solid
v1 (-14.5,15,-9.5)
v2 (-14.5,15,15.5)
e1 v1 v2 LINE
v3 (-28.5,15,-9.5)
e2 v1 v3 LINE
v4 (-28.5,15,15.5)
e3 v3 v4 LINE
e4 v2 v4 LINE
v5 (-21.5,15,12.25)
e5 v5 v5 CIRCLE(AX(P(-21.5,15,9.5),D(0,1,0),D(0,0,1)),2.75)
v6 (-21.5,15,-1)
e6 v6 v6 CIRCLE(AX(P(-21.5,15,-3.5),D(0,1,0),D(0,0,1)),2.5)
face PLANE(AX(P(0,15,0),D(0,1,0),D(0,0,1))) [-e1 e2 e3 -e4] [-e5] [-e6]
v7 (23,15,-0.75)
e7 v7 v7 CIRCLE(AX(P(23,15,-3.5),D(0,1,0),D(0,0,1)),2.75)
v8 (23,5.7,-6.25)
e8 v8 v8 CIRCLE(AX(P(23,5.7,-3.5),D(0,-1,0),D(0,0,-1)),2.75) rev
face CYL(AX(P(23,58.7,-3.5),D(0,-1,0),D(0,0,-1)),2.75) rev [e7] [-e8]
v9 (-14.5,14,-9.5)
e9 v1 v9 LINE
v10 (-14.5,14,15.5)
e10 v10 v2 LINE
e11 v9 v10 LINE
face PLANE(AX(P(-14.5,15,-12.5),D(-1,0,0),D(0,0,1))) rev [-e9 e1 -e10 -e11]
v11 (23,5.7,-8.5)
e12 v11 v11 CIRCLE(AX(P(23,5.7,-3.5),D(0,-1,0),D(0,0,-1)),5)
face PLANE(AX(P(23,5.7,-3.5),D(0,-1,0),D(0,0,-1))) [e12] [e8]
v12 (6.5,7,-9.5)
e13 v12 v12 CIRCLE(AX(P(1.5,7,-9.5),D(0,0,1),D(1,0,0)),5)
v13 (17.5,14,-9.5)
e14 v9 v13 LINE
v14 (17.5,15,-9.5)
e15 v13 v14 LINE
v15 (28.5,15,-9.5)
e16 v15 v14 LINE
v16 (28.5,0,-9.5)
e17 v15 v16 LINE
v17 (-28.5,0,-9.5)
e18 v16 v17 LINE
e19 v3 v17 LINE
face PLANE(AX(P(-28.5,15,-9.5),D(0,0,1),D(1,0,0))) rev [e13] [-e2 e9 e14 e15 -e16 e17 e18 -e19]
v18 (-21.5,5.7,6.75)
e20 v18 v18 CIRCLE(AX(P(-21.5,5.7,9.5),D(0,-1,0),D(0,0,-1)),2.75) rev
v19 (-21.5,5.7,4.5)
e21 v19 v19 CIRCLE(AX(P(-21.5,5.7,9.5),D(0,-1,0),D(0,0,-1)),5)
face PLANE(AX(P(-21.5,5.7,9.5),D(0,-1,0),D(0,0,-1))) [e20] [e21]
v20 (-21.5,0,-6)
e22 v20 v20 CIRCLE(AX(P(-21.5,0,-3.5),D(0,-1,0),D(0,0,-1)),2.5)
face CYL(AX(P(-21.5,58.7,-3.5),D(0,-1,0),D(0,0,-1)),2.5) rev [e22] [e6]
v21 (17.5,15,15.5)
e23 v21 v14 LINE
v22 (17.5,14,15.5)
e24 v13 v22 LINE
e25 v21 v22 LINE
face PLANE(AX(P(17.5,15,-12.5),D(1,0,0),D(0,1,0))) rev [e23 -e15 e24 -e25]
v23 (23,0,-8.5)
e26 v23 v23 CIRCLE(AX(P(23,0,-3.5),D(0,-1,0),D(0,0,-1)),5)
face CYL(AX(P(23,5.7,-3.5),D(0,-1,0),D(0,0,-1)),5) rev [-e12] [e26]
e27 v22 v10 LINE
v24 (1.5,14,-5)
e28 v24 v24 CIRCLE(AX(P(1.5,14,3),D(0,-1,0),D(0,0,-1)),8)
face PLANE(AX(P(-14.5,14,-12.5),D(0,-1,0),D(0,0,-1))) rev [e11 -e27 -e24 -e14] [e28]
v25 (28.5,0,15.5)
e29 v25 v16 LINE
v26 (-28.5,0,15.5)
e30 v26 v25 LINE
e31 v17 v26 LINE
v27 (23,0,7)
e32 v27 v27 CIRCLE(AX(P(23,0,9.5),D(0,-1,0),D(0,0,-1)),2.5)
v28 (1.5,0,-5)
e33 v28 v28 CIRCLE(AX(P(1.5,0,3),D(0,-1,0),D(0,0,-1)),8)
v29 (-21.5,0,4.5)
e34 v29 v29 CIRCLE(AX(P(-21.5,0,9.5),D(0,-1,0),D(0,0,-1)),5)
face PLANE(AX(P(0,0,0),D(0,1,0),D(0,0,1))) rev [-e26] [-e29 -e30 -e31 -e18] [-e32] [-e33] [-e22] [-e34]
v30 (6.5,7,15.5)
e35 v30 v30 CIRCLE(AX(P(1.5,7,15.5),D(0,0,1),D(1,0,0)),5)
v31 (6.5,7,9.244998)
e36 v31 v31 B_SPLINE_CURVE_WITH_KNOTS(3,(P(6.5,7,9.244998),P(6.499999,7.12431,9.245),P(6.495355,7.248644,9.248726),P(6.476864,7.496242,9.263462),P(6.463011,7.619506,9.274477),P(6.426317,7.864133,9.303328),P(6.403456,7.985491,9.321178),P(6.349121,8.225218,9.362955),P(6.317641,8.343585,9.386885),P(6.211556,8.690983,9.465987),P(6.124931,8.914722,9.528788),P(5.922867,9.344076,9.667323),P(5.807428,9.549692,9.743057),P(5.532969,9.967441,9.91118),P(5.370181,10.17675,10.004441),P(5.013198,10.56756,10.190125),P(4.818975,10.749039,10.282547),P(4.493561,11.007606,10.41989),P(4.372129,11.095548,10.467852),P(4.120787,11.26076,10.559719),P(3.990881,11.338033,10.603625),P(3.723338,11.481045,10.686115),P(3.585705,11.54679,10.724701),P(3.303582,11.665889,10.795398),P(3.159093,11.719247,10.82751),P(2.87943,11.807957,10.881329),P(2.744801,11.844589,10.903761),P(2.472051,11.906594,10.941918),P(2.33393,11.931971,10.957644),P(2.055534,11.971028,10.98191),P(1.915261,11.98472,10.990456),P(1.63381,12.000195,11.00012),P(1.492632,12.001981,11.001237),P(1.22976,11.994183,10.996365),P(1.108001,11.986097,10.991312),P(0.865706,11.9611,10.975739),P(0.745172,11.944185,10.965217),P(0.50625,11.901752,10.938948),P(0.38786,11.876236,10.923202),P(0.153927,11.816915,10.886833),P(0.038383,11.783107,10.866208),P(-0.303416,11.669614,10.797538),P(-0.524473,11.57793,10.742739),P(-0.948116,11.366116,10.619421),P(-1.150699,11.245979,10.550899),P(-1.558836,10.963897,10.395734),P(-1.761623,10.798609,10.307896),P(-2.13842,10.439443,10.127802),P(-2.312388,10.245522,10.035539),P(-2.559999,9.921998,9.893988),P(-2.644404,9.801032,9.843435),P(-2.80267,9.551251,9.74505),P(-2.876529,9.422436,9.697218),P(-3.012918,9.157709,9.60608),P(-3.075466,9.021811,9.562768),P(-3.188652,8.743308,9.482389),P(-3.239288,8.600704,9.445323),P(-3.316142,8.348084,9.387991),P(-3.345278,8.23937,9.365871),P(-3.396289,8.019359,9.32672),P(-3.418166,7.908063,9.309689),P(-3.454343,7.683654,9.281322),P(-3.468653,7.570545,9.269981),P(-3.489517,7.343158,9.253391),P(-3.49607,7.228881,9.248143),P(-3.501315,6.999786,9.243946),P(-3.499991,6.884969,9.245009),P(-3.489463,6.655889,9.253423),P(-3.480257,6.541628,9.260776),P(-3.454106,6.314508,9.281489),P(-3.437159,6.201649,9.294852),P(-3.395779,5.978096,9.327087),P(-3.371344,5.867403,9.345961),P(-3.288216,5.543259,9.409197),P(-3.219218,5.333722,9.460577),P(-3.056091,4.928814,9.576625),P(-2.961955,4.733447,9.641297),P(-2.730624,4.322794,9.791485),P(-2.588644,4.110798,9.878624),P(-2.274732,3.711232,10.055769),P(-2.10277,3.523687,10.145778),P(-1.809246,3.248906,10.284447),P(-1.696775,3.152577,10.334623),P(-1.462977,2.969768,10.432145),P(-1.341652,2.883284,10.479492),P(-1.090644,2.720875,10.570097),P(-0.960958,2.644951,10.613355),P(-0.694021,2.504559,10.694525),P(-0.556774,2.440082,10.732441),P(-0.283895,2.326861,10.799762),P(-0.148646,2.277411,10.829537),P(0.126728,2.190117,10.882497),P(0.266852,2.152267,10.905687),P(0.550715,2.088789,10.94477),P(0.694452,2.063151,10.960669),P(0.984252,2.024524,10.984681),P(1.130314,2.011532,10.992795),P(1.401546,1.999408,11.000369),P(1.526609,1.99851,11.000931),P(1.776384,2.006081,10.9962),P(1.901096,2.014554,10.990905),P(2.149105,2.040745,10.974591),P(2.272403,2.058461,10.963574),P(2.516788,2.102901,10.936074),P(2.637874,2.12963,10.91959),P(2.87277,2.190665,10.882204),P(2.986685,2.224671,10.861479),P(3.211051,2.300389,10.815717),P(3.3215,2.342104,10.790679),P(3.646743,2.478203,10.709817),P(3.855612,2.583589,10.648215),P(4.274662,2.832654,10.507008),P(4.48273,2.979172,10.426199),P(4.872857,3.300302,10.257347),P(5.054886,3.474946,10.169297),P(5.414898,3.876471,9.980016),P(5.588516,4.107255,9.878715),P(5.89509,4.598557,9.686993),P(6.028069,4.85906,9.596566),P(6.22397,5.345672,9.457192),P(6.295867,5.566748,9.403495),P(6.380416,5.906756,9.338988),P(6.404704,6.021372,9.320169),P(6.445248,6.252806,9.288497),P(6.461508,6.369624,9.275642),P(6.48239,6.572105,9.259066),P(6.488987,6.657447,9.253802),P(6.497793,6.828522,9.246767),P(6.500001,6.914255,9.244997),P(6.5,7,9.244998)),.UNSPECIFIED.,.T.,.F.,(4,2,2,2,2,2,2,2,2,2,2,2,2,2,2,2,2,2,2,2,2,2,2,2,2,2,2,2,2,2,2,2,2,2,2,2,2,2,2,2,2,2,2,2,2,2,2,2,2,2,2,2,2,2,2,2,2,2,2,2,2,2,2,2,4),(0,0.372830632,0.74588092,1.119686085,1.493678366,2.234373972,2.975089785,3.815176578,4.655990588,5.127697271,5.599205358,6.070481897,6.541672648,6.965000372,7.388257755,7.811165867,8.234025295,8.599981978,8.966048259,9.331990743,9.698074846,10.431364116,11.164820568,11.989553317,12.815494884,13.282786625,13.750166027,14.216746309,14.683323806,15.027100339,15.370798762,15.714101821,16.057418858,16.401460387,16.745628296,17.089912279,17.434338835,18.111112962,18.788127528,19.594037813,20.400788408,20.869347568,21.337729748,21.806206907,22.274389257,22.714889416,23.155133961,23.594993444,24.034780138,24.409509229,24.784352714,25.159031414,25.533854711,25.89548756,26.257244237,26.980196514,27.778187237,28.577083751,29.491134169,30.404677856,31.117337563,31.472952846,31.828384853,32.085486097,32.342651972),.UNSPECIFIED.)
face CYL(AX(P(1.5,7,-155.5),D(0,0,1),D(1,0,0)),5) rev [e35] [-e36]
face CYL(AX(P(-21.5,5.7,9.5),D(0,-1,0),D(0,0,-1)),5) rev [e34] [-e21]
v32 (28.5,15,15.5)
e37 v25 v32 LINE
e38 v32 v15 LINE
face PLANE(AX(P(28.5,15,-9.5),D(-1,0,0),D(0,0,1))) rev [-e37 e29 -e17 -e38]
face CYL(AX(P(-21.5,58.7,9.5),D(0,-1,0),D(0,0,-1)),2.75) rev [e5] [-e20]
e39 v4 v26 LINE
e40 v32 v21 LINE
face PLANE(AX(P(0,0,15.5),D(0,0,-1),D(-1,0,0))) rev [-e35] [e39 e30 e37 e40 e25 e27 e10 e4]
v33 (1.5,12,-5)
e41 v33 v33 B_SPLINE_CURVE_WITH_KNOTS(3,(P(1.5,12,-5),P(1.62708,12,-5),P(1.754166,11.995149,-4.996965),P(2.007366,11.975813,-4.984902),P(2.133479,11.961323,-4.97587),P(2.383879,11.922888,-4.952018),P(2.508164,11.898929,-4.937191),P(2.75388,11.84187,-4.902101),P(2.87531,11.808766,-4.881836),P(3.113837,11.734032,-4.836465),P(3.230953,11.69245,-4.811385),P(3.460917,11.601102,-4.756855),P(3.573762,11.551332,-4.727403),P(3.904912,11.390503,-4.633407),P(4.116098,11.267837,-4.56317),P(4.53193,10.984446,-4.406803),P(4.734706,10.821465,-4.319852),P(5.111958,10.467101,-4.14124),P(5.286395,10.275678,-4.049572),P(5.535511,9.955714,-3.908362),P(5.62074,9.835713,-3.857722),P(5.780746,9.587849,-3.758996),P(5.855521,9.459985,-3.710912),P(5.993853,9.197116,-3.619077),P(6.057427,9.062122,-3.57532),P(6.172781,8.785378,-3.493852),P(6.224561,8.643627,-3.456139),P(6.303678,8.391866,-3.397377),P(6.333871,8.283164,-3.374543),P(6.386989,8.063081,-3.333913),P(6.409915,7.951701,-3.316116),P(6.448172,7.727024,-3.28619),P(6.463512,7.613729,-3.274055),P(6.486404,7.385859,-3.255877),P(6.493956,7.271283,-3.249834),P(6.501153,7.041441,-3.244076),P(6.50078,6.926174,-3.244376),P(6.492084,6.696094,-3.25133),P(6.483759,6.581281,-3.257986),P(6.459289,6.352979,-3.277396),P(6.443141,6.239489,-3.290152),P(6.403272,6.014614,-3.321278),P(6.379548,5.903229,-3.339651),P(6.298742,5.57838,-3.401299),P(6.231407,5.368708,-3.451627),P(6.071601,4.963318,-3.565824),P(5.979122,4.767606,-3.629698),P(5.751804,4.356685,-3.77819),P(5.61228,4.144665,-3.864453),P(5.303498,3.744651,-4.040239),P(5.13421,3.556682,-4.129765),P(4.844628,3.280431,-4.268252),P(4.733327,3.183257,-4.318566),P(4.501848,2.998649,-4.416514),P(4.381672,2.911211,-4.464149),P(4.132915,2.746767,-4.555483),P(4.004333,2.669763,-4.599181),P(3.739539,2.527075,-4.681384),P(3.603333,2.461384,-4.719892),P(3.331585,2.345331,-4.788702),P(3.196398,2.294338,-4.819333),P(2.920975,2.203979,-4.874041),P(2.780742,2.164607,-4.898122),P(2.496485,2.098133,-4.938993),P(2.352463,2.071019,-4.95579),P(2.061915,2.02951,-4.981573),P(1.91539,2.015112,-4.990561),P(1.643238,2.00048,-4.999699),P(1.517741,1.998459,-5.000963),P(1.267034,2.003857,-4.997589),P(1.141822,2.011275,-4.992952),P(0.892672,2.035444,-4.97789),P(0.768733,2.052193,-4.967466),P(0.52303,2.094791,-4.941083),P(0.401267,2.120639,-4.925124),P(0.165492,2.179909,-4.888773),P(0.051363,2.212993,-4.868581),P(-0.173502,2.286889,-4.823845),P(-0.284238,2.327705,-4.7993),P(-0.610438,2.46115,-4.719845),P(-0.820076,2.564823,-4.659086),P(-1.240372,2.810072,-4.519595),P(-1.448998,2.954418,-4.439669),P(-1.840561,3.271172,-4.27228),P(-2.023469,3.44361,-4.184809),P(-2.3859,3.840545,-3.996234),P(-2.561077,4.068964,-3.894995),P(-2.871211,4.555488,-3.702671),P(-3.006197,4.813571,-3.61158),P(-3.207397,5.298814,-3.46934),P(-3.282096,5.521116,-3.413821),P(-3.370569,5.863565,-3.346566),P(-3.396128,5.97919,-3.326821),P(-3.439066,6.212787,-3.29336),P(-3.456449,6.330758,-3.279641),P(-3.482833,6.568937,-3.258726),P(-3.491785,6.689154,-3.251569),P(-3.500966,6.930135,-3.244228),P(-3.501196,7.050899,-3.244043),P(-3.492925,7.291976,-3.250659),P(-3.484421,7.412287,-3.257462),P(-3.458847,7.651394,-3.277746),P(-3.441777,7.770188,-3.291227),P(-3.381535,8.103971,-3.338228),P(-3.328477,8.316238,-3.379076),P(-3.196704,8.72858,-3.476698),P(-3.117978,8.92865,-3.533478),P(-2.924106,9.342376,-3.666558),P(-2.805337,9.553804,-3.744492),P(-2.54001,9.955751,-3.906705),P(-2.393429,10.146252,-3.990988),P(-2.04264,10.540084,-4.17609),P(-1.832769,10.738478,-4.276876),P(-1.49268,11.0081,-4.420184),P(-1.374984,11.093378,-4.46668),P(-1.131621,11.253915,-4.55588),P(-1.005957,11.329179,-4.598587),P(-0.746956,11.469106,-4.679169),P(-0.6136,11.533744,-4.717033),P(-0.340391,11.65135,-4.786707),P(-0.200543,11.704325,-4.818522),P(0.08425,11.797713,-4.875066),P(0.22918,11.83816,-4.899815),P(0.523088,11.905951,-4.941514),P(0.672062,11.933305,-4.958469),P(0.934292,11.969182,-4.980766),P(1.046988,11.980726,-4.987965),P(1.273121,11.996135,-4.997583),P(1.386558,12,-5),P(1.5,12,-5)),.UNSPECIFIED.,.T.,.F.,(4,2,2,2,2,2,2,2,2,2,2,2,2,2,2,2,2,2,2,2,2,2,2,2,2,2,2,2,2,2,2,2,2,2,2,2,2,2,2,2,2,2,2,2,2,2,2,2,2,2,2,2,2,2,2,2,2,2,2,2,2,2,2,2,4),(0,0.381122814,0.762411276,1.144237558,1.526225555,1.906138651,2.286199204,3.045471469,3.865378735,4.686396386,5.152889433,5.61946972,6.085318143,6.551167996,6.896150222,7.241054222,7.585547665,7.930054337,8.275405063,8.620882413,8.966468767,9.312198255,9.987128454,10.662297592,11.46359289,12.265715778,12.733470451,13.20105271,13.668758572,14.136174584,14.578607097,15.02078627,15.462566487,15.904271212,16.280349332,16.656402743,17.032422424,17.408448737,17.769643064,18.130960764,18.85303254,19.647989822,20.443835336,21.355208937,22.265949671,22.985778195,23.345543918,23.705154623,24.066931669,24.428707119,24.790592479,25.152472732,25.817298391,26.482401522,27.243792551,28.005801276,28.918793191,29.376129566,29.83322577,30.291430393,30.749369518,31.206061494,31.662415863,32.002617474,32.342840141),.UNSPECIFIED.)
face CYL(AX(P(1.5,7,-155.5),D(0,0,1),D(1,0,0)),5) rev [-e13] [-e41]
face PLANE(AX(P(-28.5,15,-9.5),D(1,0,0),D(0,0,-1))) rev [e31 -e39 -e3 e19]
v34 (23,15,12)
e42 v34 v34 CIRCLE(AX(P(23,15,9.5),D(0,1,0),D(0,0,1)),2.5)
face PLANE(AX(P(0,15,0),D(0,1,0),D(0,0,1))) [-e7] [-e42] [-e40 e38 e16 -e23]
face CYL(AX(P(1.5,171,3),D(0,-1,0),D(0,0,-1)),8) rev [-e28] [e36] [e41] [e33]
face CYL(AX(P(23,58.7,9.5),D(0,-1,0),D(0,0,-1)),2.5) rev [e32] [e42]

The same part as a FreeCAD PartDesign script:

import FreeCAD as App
import Part
import Sketcher

V = App.Vector


def add_polygon(sketch, points):
    """Adds a closed chain of lines whose ends are joined by coincident constraints."""
    first, n = sketch.GeometryCount, len(points)
    for a, b in zip(points, points[1:] + points[:1]):
        sketch.addGeometry(Part.LineSegment(App.Vector(*a, 0), App.Vector(*b, 0)), False)
    for i in range(n):
        sketch.addConstraint(Sketcher.Constraint("Coincident", first + i, 2, first + (i + 1) % n, 1))

doc = App.newDocument("Part")
body = doc.addObject("PartDesign::Body", "Body")

sketch1 = doc.addObject("Sketcher::SketchObject", "Sketch")
body.addObject(sketch1)
sketch1.AttachmentSupport = (doc.XZ_Plane, [""])
sketch1.MapMode = "FlatFace"
add_polygon(sketch1, [(-28, -10), (-28, 10), (28, 10), (28, -10)])
sketch1.addConstraint([
    Sketcher.Constraint("Vertical", 0),
    Sketcher.Constraint("Horizontal", 1),
    Sketcher.Constraint("Vertical", 2),
    Sketcher.Constraint("Horizontal", 3),
    Sketcher.Constraint("Symmetric", 0, 2, 2, 2, -1, 1),
    Sketcher.Constraint("DistanceX", 1, 1, 1, 2, 57.0),
    Sketcher.Constraint("DistanceY", 0, 1, 0, 2, 19.0),
])
pad1 = doc.addObject("PartDesign::Pad", "Pad")
body.addObject(pad1)
pad1.Profile = sketch1
pad1.Length = 15
pad1.Reversed = True

sketch2 = doc.addObject("Sketcher::SketchObject", "Sketch001")
body.addObject(sketch2)
sketch2.AttachmentSupport = (doc.XY_Plane, [""])
sketch2.MapMode = "FlatFace"
sketch2.AttachmentOffset = App.Placement(V(0, 0, 9.5), App.Rotation())
add_polygon(sketch2, [(-14.5, 15), (-14.5, 14), (17.5, 14), (17.5, 15)])
sketch2.addConstraint([
    Sketcher.Constraint("Vertical", 0),
    Sketcher.Constraint("Horizontal", 1),
    Sketcher.Constraint("Vertical", 2),
    Sketcher.Constraint("Horizontal", 3),
    Sketcher.Constraint("DistanceX", 1, 1, 1, 2, 32.0),
    Sketcher.Constraint("DistanceY", 0, 2, 0, 1, 1.0),
    Sketcher.Constraint("DistanceY", -1, 1, 0, 2, 14.0),
    Sketcher.Constraint("DistanceX", 0, 2, -1, 1, 14.5),
])
pocket1 = doc.addObject("PartDesign::Pocket", "Pocket")
body.addObject(pocket1)
pocket1.Profile = sketch2
pocket1.Length = 22

sketch3 = doc.addObject("Sketcher::SketchObject", "Sketch002")
body.addObject(sketch3)
sketch3.AttachmentSupport = (doc.XY_Plane, [""])
sketch3.MapMode = "FlatFace"
sketch3.AttachmentOffset = App.Placement(V(0, 0, 9.5), App.Rotation())
sketch3.addGeometry(Part.Circle(V(0, 7, 0), V(0, 0, 1), 5), False)
sketch3.addConstraint([
    Sketcher.Constraint("PointOnObject", 0, 3, -2),
    Sketcher.Constraint("Diameter", 0, 10.0),
    Sketcher.Constraint("DistanceY", -1, 1, 0, 3, 7.0),
])
pocket2 = doc.addObject("PartDesign::Pocket", "Pocket001")
body.addObject(pocket2)
pocket2.Profile = sketch3
pocket2.Length = 22

sketch4 = doc.addObject("Sketcher::SketchObject", "Sketch003")
body.addObject(sketch4)
sketch4.AttachmentSupport = (doc.XY_Plane, [""])
sketch4.MapMode = "FlatFace"
sketch4.AttachmentOffset = App.Placement(V(0, 0, 9.5), App.Rotation())
add_polygon(sketch4, [(-14.5, 15), (-28.5, 15), (-28.5, 0), (28.5, 0), (28.5, 15), (17.5, 15), (17.5, 14), (-14.5, 14)])
sketch4.addConstraint([
    Sketcher.Constraint("Horizontal", 0),
    Sketcher.Constraint("Vertical", 1),
    Sketcher.Constraint("Horizontal", 2),
    Sketcher.Constraint("Vertical", 3),
    Sketcher.Constraint("Horizontal", 4),
    Sketcher.Constraint("Vertical", 5),
    Sketcher.Constraint("Horizontal", 6),
    Sketcher.Constraint("Vertical", 7),
    Sketcher.Constraint("Symmetric", 1, 2, 2, 2, -1, 1),
    Sketcher.Constraint("Horizontal", 0, 2, 3, 2),
    Sketcher.Constraint("DistanceX", 0, 2, 0, 1, 14.0),
    Sketcher.Constraint("DistanceX", 2, 1, 2, 2, 57.0),
    Sketcher.Constraint("DistanceX", 4, 2, 4, 1, 11.0),
    Sketcher.Constraint("DistanceY", 1, 2, 1, 1, 15.0),
    Sketcher.Constraint("DistanceY", 5, 2, 5, 1, 1.0),
])
pad2 = doc.addObject("PartDesign::Pad", "Pad001")
body.addObject(pad2)
pad2.Profile = sketch4
pad2.Length = 6

sketch5 = doc.addObject("Sketcher::SketchObject", "Sketch004")
body.addObject(sketch5)
sketch5.AttachmentSupport = (doc.XZ_Plane, [""])
sketch5.MapMode = "FlatFace"
sketch5.addGeometry([
    Part.Circle(V(-21.5, 9.5, 0), V(0, 0, 1), 2.8),
    Part.Circle(V(23, -3.5, 0), V(0, 0, 1), 2.8),
    Part.Circle(V(-21.5, -3.5, 0), V(0, 0, 1), 2.5),
    Part.Circle(V(23, 9.5, 0), V(0, 0, 1), 2.5),
], False)
sketch5.addConstraint([
    Sketcher.Constraint("Equal", 0, 1),
    Sketcher.Constraint("Equal", 2, 3),
    Sketcher.Constraint("Horizontal", 1, 3, 2, 3),
    Sketcher.Constraint("Horizontal", 0, 3, 3, 3),
    Sketcher.Constraint("Vertical", 0, 3, 2, 3),
    Sketcher.Constraint("Vertical", 1, 3, 3, 3),
    Sketcher.Constraint("Diameter", 2, 5.0),
    Sketcher.Constraint("Diameter", 0, 5.5),
    Sketcher.Constraint("DistanceX", -1, 1, 1, 3, 23.0),
    Sketcher.Constraint("DistanceY", 1, 3, 0, 3, 13.0),
    Sketcher.Constraint("DistanceX", 0, 3, -1, 1, 21.5),
    Sketcher.Constraint("DistanceY", -1, 1, 0, 3, 9.5),
])
pocket3 = doc.addObject("PartDesign::Pocket", "Pocket002")
body.addObject(pocket3)
pocket3.Profile = sketch5
pocket3.Length = 58.7

sketch6 = doc.addObject("Sketcher::SketchObject", "Sketch005")
body.addObject(sketch6)
sketch6.AttachmentSupport = (doc.XZ_Plane, [""])
sketch6.MapMode = "FlatFace"
sketch6.addGeometry([
    Part.Circle(V(-22, 10, 0), V(0, 0, 1), 5),
    Part.Circle(V(23, -4, 0), V(0, 0, 1), 5),
], False)
sketch6.addConstraint([
    Sketcher.Constraint("Equal", 0, 1),
    Sketcher.Constraint("Diameter", 0, 10.0),
    Sketcher.Constraint("DistanceX", -1, 1, 1, 3, 23.0),
    Sketcher.Constraint("DistanceY", 1, 3, 0, 3, 13.0),
    Sketcher.Constraint("DistanceX", 0, 3, -1, 1, 21.5),
    Sketcher.Constraint("DistanceY", -1, 1, 0, 3, 9.5),
])
pocket4 = doc.addObject("PartDesign::Pocket", "Pocket003")
body.addObject(pocket4)
pocket4.Profile = sketch6
pocket4.Length = 5.7

sketch7 = doc.addObject("Sketcher::SketchObject", "Sketch006")
body.addObject(sketch7)
sketch7.AttachmentSupport = (doc.XZ_Plane, [""])
sketch7.MapMode = "FlatFace"
sketch7.addGeometry(Part.Circle(V(0, 3, 0), V(0, 0, 1), 8), False)
sketch7.addConstraint([
    Sketcher.Constraint("PointOnObject", 0, 3, -2),
    Sketcher.Constraint("Diameter", 0, 16.0),
    Sketcher.Constraint("DistanceY", -1, 1, 0, 3, 3.0),
])
pocket5 = doc.addObject("PartDesign::Pocket", "Pocket004")
body.addObject(pocket5)
pocket5.Profile = sketch7
pocket5.Length = 15.7

sketch8 = doc.addObject("Sketcher::SketchObject", "Sketch007")
body.addObject(sketch8)
sketch8.AttachmentSupport = (doc.XY_Plane, [""])
sketch8.MapMode = "FlatFace"
sketch8.AttachmentOffset = App.Placement(V(0, 0, -9.5), App.Rotation())
sketch8.addGeometry(Part.Circle(V(0, 7, 0), V(0, 0, 1), 5), False)
sketch8.addConstraint([
    Sketcher.Constraint("PointOnObject", 0, 3, -2),
    Sketcher.Constraint("Diameter", 0, 10.0),
    Sketcher.Constraint("DistanceY", -1, 1, 0, 3, 7.0),
])
pocket6 = doc.addObject("PartDesign::Pocket", "Pocket005")
body.addObject(pocket6)
pocket6.Profile = sketch8
pocket6.Length = 56.7
pocket6.Reversed = True

sketch9 = doc.addObject("Sketcher::SketchObject", "Sketch008")
body.addObject(sketch9)
sketch9.AttachmentSupport = (doc.XZ_Plane, [""])
sketch9.MapMode = "FlatFace"
sketch9.addGeometry(Part.Circle(V(0, 3, 0), V(0, 0, 1), 8), False)
sketch9.addConstraint([
    Sketcher.Constraint("PointOnObject", 0, 3, -2),
    Sketcher.Constraint("Diameter", 0, 16.0),
    Sketcher.Constraint("DistanceY", -1, 1, 0, 3, 3.0),
])
pad3 = doc.addObject("PartDesign::Pad", "Pad002")
body.addObject(pad3)
pad3.Profile = sketch9
pad3.Length = 14
pad3.Reversed = True

sketch10 = doc.addObject("Sketcher::SketchObject", "Sketch009")
body.addObject(sketch10)
sketch10.AttachmentSupport = (doc.XY_Plane, [""])
sketch10.MapMode = "FlatFace"
sketch10.AttachmentOffset = App.Placement(V(0, 0, 15.5), App.Rotation())
sketch10.addGeometry(Part.Circle(V(0, 7, 0), V(0, 0, 1), 5), False)
sketch10.addConstraint([
    Sketcher.Constraint("PointOnObject", 0, 3, -2),
    Sketcher.Constraint("Diameter", 0, 10.0),
    Sketcher.Constraint("DistanceY", -1, 1, 0, 3, 7.0),
])
pad4 = doc.addObject("PartDesign::Pad", "Pad003")
body.addObject(pad4)
pad4.Profile = sketch10
pad4.Length = 25
pad4.Reversed = True

sketch11 = doc.addObject("Sketcher::SketchObject", "Sketch010")
body.addObject(sketch11)
sketch11.AttachmentSupport = (doc.XZ_Plane, [""])
sketch11.MapMode = "FlatFace"
sketch11.addGeometry(Part.Circle(V(2, 3, 0), V(0, 0, 1), 8), False)
sketch11.addConstraint([
    Sketcher.Constraint("Diameter", 0, 16.0),
    Sketcher.Constraint("DistanceY", -1, 1, 0, 3, 3.0),
    Sketcher.Constraint("DistanceX", -1, 1, 0, 3, 1.5),
])
pocket7 = doc.addObject("PartDesign::Pocket", "Pocket006")
body.addObject(pocket7)
pocket7.Profile = sketch11
pocket7.Length = 171

sketch12 = doc.addObject("Sketcher::SketchObject", "Sketch011")
body.addObject(sketch12)
sketch12.AttachmentSupport = (doc.XY_Plane, [""])
sketch12.MapMode = "FlatFace"
sketch12.AttachmentOffset = App.Placement(V(0, 0, 15.5), App.Rotation())
sketch12.addGeometry(Part.Circle(V(2, 7, 0), V(0, 0, 1), 5), False)
sketch12.addConstraint([
    Sketcher.Constraint("Diameter", 0, 10.0),
    Sketcher.Constraint("DistanceY", -1, 1, 0, 3, 7.0),
    Sketcher.Constraint("DistanceX", -1, 1, 0, 3, 1.5),
])
pocket8 = doc.addObject("PartDesign::Pocket", "Pocket007")
body.addObject(pocket8)
pocket8.Profile = sketch12
pocket8.Length = 171

doc.recompute()
